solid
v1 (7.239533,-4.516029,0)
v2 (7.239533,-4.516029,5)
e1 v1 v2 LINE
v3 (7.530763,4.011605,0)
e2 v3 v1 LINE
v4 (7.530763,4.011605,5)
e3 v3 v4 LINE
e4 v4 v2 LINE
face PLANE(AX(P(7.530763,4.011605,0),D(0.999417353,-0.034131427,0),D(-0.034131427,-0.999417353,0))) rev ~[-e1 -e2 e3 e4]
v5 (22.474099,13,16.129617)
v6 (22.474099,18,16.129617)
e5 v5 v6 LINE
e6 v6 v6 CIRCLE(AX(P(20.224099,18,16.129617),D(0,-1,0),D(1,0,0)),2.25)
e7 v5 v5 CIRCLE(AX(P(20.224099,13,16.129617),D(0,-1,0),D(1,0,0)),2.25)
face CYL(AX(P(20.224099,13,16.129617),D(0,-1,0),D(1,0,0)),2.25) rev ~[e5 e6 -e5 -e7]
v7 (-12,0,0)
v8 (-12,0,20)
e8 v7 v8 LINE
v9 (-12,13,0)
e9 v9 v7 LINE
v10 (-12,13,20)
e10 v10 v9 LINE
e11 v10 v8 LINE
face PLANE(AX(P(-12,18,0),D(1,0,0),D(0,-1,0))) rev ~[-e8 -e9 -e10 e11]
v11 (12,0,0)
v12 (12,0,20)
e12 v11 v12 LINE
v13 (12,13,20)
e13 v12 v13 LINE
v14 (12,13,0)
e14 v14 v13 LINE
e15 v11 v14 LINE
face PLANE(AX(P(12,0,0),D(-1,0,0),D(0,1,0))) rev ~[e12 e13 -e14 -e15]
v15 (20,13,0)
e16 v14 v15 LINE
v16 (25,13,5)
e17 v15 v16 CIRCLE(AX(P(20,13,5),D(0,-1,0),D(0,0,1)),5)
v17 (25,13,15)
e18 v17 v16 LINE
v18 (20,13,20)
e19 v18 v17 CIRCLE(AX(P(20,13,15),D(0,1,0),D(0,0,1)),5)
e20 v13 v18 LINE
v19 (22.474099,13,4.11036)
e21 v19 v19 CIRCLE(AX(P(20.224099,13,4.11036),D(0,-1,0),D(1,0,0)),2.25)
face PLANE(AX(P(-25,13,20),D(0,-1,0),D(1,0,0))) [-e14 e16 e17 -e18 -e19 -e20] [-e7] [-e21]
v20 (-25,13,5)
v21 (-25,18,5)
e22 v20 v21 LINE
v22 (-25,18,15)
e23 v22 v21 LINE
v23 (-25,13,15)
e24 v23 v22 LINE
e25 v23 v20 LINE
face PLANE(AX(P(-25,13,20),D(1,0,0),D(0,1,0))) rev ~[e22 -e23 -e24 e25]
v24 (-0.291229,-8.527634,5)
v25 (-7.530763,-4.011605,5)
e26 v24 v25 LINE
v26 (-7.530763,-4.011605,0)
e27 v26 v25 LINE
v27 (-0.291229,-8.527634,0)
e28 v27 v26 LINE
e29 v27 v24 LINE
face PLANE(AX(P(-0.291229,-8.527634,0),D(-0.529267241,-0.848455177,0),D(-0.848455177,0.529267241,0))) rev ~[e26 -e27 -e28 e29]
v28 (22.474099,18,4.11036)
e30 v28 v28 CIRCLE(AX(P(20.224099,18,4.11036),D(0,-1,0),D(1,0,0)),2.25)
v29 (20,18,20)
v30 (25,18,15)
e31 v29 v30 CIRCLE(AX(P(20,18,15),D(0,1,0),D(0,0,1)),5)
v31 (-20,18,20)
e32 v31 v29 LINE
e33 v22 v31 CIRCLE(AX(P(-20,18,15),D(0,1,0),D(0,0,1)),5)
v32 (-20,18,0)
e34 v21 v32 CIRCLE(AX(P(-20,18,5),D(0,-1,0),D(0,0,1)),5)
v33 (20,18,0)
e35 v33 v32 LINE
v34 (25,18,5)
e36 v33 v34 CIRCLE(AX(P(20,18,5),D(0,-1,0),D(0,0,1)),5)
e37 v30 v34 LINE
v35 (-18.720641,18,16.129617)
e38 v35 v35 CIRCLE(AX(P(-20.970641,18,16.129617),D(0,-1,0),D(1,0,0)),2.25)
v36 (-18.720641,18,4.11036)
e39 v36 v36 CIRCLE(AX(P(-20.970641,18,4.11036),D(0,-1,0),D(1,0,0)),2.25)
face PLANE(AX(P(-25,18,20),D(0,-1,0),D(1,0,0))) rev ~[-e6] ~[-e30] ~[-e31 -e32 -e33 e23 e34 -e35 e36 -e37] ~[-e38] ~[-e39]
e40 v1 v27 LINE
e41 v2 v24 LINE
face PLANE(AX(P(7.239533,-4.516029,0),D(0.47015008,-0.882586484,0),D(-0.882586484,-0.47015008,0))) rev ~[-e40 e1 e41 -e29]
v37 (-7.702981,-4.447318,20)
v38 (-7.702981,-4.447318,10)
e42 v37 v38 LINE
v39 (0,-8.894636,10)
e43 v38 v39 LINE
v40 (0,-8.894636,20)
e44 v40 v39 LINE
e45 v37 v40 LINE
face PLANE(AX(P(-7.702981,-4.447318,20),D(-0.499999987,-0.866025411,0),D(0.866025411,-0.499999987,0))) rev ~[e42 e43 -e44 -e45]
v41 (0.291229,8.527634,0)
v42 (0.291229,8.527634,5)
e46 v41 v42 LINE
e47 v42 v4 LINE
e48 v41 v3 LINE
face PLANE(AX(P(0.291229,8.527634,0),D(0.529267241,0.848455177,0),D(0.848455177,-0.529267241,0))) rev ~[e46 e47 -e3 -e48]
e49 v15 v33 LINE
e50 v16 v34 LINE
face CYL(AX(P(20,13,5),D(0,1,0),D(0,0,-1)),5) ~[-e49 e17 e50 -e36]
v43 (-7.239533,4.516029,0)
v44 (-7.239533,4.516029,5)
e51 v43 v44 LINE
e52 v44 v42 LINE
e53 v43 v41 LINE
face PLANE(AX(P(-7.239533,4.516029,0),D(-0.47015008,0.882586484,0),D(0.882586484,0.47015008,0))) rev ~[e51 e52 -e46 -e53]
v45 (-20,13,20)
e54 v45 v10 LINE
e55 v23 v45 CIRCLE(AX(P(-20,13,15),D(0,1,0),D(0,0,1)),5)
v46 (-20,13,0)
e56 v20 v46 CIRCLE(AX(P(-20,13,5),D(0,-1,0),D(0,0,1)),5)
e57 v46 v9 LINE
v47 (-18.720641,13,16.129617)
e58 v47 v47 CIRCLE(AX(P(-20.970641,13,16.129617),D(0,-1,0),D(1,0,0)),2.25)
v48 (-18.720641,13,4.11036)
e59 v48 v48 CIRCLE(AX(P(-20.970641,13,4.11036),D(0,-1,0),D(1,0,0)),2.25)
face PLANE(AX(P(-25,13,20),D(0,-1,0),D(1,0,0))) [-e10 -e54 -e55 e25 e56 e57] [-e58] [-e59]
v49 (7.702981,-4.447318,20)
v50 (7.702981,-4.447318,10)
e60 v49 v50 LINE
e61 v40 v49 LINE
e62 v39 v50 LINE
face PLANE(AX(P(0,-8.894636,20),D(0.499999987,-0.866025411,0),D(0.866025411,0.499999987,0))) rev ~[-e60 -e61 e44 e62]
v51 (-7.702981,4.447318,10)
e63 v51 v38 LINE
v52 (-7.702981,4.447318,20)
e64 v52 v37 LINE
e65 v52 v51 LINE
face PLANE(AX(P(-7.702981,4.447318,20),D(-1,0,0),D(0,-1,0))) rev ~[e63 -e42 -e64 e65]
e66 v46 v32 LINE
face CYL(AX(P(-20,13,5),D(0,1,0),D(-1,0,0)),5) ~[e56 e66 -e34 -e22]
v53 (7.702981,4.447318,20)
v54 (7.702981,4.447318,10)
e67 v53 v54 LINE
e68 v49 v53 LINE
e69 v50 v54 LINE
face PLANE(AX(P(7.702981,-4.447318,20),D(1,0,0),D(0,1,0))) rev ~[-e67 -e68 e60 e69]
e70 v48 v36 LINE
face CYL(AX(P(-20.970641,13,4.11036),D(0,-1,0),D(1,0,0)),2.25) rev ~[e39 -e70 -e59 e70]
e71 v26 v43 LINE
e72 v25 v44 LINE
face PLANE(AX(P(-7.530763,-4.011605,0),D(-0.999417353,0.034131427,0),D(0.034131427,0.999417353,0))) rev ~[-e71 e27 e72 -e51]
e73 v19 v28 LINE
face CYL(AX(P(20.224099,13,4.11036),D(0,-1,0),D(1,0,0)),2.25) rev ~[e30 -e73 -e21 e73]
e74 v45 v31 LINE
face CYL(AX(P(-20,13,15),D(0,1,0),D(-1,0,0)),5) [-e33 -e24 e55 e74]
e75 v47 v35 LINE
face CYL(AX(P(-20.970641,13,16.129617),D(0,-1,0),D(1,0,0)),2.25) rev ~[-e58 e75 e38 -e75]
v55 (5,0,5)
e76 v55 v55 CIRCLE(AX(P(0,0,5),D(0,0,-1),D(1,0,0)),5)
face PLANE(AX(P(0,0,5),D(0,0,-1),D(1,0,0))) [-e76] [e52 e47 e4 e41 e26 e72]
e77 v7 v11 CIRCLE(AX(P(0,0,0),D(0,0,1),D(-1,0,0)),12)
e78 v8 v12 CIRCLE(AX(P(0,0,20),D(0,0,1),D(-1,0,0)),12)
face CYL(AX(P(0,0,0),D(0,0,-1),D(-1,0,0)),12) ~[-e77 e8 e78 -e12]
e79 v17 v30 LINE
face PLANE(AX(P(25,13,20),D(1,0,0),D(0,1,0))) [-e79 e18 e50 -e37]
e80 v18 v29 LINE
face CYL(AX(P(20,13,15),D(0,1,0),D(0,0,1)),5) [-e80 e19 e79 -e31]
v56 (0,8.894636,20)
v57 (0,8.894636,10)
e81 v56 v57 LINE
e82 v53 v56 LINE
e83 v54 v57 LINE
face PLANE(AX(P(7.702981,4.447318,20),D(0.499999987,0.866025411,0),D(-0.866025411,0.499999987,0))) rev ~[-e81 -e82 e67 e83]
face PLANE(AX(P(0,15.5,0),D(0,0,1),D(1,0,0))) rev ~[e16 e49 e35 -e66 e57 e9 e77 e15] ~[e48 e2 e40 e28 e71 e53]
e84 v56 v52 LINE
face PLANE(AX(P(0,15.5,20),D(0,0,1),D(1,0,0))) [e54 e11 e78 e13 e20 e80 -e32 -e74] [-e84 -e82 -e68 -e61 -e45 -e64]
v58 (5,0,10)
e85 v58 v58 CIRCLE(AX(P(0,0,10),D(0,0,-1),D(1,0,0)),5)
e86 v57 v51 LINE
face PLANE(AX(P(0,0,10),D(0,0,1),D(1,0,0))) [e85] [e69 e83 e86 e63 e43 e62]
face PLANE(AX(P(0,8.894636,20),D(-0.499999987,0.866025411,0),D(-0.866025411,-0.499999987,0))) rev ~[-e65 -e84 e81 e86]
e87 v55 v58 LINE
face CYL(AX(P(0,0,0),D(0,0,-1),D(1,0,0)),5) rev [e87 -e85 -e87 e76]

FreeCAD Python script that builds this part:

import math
import FreeCAD as App
import Part
import Sketcher

V = App.Vector
Q = App.Units.Quantity


def edges_at(feature, points):
    """Names of the edges that pass closest to the given points."""
    edges = feature.Shape.Edges
    near = lambda p: min(range(len(edges)), key=lambda i: edges[i].distToShape(Part.Vertex(*p))[0])
    return sorted({f"Edge{near(p) + 1}" for p in points})


def add_polygon(sketch, points):
    """Adds a closed chain of lines whose ends are joined by coincident constraints."""
    first, n = sketch.GeometryCount, len(points)
    for a, b in zip(points, points[1:] + points[:1]):
        sketch.addGeometry(Part.LineSegment(App.Vector(*a, 0), App.Vector(*b, 0)), False)
    for i in range(n):
        sketch.addConstraint(Sketcher.Constraint("Coincident", first + i, 2, first + (i + 1) % n, 1))

doc = App.newDocument("Part")
body = doc.addObject("PartDesign::Body", "Body")

# Sketch on XY plane
sketch1 = body.newObject("Sketcher::SketchObject", "Sketch")
sketch1.AttachmentSupport = (doc.getObject("XY_Plane"), [""])
sketch1.MapMode = "FlatFace"
sketch1.addGeometry([
    Part.LineSegment(V(12, 18, 0), V(-12, 18, 0)),  # 0
    Part.LineSegment(V(-12, 18, 0), V(-12, 0, 0)),  # 1
    Part.ArcOfCircle(Part.Circle(V(0, 0, 0), V(0, 0, 1), 12), math.radians(180), math.radians(360)),  # 2
    Part.LineSegment(V(12, 0, 0), V(12, 18, 0)),  # 3
    Part.Circle(V(0, 0, 0), V(0, 0, 1), 5),  # 4
], False)
sketch1.addConstraint([
    Sketcher.Constraint("Coincident", 0, 2, 1, 1),
    Sketcher.Constraint("Tangent", 1, 2, 2, 1),
    Sketcher.Constraint("Tangent", 2, 2, 3, 1),
    Sketcher.Constraint("Coincident", 3, 2, 0, 1),
    Sketcher.Constraint("Horizontal", 0),
    Sketcher.Constraint("Vertical", 1),
    Sketcher.Constraint("Vertical", 3),
    Sketcher.Constraint("Coincident", 2, 3, -1, 1),
    Sketcher.Constraint("Coincident", 4, 3, -1, 1),
    Sketcher.Constraint("Diameter", 4, 10.0),
    Sketcher.Constraint("Radius", 2, 12.0),
    Sketcher.Constraint("DistanceY", 1, 2, 1, 1, 18.0),
])
pad1 = body.newObject("PartDesign::Pad", "Pad")
pad1.Profile = sketch1
pad1.Length = 20

# Sketch on XY plane
sketch2 = body.newObject("Sketcher::SketchObject", "Sketch001")
sketch2.AttachmentSupport = (doc.getObject("XY_Plane"), [""])
sketch2.MapMode = "FlatFace"
sketch2.AttachmentOffset = App.Placement(V(0, 0, 20), App.Rotation())
add_polygon(sketch2, [(-25, 18), (-25, 13), (25, 13), (25, 18)])  # lines 0-3
sketch2.addConstraint([
    Sketcher.Constraint("Vertical", 0),
    Sketcher.Constraint("Horizontal", 1),
    Sketcher.Constraint("Vertical", 2),
    Sketcher.Constraint("Horizontal", 3),
    Sketcher.Constraint("DistanceX", 1, 1, 1, 2, 50.0),
    Sketcher.Constraint("DistanceY", 0, 2, 0, 1, 5.0),
    Sketcher.Constraint("DistanceX", 0, 2, -1, 1, 25.0),
    Sketcher.Constraint("DistanceY", -1, 1, 0, 2, 13.0),
])
pad2 = body.newObject("PartDesign::Pad", "Pad001")
pad2.Profile = sketch2
pad2.Type = "UpToLast"
pad2.Reversed = True

# Sketch on XZ plane
sketch3 = body.newObject("Sketcher::SketchObject", "Sketch002")
sketch3.AttachmentSupport = (doc.getObject("XZ_Plane"), [""])
sketch3.MapMode = "FlatFace"
sketch3.AttachmentOffset = App.Placement(V(0, 0, -13), App.Rotation())
sketch3.addGeometry([
    Part.Circle(V(-20.970641, 16.129617, 0), V(0, 0, 1), 2.25),
    Part.Circle(V(20.224099, 16.129617, 0), V(0, 0, 1), 2.25),
    Part.Circle(V(-20.970641, 4.11036, 0), V(0, 0, 1), 2.25),
    Part.Circle(V(20.224099, 4.11036, 0), V(0, 0, 1), 2.25),
], False)
sketch3.addConstraint([
    Sketcher.Constraint("Equal", 0, 1),
    Sketcher.Constraint("Equal", 1, 2),
    Sketcher.Constraint("Equal", 2, 3),
    Sketcher.Constraint("Horizontal", 0, 3, 1, 3),
    Sketcher.Constraint("Horizontal", 2, 3, 3, 3),
    Sketcher.Constraint("Vertical", 0, 3, 2, 3),
    Sketcher.Constraint("Vertical", 1, 3, 3, 3),
    Sketcher.Constraint("Diameter", 0, 4.5),
    Sketcher.Constraint("DistanceX", -1, 1, 1, 3, 20.224099),
    Sketcher.Constraint("DistanceX", 0, 3, -1, 1, 20.970641),
    Sketcher.Constraint("DistanceY", -1, 1, 2, 3, 4.11036),
    Sketcher.Constraint("DistanceY", -1, 1, 0, 3, 16.129617),
])
pocket1 = body.newObject("PartDesign::Pocket", "Pocket")
pocket1.Profile = sketch3
pocket1.Length = 25
doc.recompute()

fillet = body.newObject("PartDesign::Fillet", "Fillet")
fillet.Base = (pocket1, edges_at(pocket1, [
    (25, 15.5, 0),
    (-25, 15.5, 0),
    (-25, 15.5, 20),
    (25, 15.5, 20),
]))
fillet.Radius = 5

# Sketch on XY plane
sketch4 = body.newObject("Sketcher::SketchObject", "Sketch003")
sketch4.AttachmentSupport = (doc.getObject("XY_Plane"), [""])
sketch4.MapMode = "FlatFace"
sketch4.AttachmentOffset = App.Placement(V(0, 0, 20), App.Rotation())
add_polygon(sketch4, [(7.702981, 4.447318), (0, 8.894636), (-7.702981, 4.447318), (-7.702981, -4.447318), (0, -8.894636), (7.702981, -4.447318)])  # lines 0-5
sketch4.addConstraint([
    Sketcher.Constraint("Vertical", 2),
    Sketcher.Constraint("Vertical", 5),
    Sketcher.Constraint("Symmetric", 0, 2, 3, 2, -1, 1),
    Sketcher.Constraint("Symmetric", 1, 2, 4, 2, -1, 1),
    Sketcher.Constraint("PointOnObject", 0, 2, -2),
    Sketcher.Constraint("Parallel", 0, 3),
    Sketcher.Constraint("Horizontal", 2, 2, 4, 2),
    Sketcher.Constraint("Angle", 0, Q("150.000001 deg")),
    Sketcher.Constraint("DistanceY", 2, 2, 2, 1, 8.894636),
    Sketcher.Constraint("DistanceX", 1, 2, -1, 1, 7.702981),
])
pocket2 = body.newObject("PartDesign::Pocket", "Pocket001")
pocket2.Profile = sketch4
pocket2.Length = 10

# Sketch on XY plane
sketch5 = body.newObject("Sketcher::SketchObject", "Sketch004")
sketch5.AttachmentSupport = (doc.getObject("XY_Plane"), [""])
sketch5.MapMode = "FlatFace"
add_polygon(sketch5, [(-0.291229, -8.527634), (-7.530763, -4.011605), (-7.239533, 4.516029), (0.291229, 8.527634), (7.530763, 4.011605), (7.239533, -4.516029)])  # lines 0-5
sketch5.addConstraint([
    Sketcher.Constraint("Symmetric", 0, 2, 3, 2, -1, 1),
    Sketcher.Constraint("Symmetric", 1, 2, 4, 2, -1, 1),
    Sketcher.Constraint("Symmetric", 2, 2, 5, 2, -1, 1),
    Sketcher.Constraint("Equal", 0, 1),
    Sketcher.Constraint("Equal", 1, 2),
    Sketcher.Constraint("DistanceY", -1, 1, 1, 2, 4.516029),
    Sketcher.Constraint("DistanceX", -1, 1, 2, 2, 0.291229),
    Sketcher.Constraint("DistanceX", 0, 2, 1, 2, 0.29123),
    Sketcher.Constraint("DistanceY", 0, 2, 2, 2, 12.539239),
])
pocket3 = body.newObject("PartDesign::Pocket", "Pocket002")
pocket3.Profile = sketch5
pocket3.Length = 5
pocket3.Reversed = True

doc.recompute()
